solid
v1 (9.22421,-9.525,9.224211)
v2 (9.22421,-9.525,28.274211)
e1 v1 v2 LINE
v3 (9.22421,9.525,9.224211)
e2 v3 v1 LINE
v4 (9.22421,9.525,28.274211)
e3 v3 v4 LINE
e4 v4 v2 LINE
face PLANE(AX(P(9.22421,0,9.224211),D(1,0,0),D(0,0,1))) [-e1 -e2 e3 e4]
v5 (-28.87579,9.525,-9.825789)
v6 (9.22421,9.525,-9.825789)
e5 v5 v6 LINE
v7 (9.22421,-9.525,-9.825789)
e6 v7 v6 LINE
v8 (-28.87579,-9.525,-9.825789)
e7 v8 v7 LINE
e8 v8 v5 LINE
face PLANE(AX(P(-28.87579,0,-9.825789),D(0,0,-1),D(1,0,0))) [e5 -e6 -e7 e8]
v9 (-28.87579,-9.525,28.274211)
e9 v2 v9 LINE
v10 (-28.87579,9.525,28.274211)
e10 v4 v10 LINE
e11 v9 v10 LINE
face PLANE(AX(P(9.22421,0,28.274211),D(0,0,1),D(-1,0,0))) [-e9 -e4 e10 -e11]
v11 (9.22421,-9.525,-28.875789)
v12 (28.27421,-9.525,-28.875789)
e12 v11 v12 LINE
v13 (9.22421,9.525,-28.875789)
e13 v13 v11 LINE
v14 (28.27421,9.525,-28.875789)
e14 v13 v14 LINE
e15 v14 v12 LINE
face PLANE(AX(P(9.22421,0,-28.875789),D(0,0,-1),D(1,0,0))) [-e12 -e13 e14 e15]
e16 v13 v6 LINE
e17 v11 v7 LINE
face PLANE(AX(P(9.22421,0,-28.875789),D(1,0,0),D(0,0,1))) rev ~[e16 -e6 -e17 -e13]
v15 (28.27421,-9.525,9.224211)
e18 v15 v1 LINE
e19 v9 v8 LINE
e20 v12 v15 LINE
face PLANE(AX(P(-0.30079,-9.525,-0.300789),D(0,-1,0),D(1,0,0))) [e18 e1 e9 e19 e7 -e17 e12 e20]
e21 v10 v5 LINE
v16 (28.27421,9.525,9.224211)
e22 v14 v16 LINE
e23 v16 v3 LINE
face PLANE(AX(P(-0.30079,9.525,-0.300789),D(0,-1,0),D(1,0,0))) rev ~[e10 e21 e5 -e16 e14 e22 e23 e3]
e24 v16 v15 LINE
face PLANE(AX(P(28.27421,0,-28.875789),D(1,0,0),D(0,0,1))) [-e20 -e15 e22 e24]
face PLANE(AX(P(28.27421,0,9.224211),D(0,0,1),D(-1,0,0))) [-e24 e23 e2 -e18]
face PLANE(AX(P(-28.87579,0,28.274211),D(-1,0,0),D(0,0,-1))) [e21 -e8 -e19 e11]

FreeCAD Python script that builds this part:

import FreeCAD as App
import Part
import Sketcher
Q = App.Units.Quantity

doc = App.newDocument("Part")
body = doc.addObject("PartDesign::Body", "Body")

# Sketch on XZ plane
sketch1 = body.newObject("Sketcher::SketchObject", "Sketch")
sketch1.AttachmentSupport = (doc.getObject("XZ_Plane"), [""])
sketch1.MapMode = "FlatFace"
sketch1.addGeometry([
    Part.LineSegment(App.Vector(9, -10, 0), App.Vector(9, -29, 0)),  # 0
    Part.LineSegment(App.Vector(9, -29, 0), App.Vector(28, -29, 0)),  # 1
    Part.LineSegment(App.Vector(28, -29, 0), App.Vector(28, 9, 0)),  # 2
    Part.LineSegment(App.Vector(28, 9, 0), App.Vector(9, 9, 0)),  # 3
    Part.LineSegment(App.Vector(9, 9, 0), App.Vector(9, 28, 0)),  # 4
    Part.LineSegment(App.Vector(9, 28, 0), App.Vector(-29, 28, 0)),  # 5
    Part.LineSegment(App.Vector(-29, 28, 0), App.Vector(-29, -10, 0)),  # 6
    Part.LineSegment(App.Vector(-29, -10, 0), App.Vector(9, -10, 0)),  # 7
], False)
sketch1.addConstraint([
    Sketcher.Constraint("Coincident", 0, 2, 1, 1),
    Sketcher.Constraint("Coincident", 1, 2, 2, 1),
    Sketcher.Constraint("Coincident", 2, 2, 3, 1),
    Sketcher.Constraint("Coincident", 3, 2, 4, 1),
    Sketcher.Constraint("Coincident", 4, 2, 5, 1),
    Sketcher.Constraint("Coincident", 5, 2, 6, 1),
    Sketcher.Constraint("Coincident", 6, 2, 7, 1),
    Sketcher.Constraint("Coincident", 7, 2, 0, 1),
    Sketcher.Constraint("Vertical", 0),
    Sketcher.Constraint("Horizontal", 1),
    Sketcher.Constraint("Vertical", 2),
    Sketcher.Constraint("Horizontal", 3),
    Sketcher.Constraint("Vertical", 4),
    Sketcher.Constraint("Horizontal", 5),
    Sketcher.Constraint("Vertical", 6),
    Sketcher.Constraint("Horizontal", 7),
    Sketcher.Constraint("Vertical", 0, 2, 3, 2),
    Sketcher.Constraint("Equal", 3, 0),
    Sketcher.Constraint("Equal", 7, 2),
    Sketcher.Constraint("Equal", 0, 4),
    Sketcher.Constraint("DistanceX", 5, 2, 5, 1, Q("1.5 in")),
    Sketcher.Constraint("DistanceX", 1, 1, 1, 2, Q("0.75 in")),
    Sketcher.Constraint("DistanceX", -1, 1, 0, 2, Q("9.22421 mm")),
    Sketcher.Constraint("DistanceY", 0, 2, -1, 1, Q("28.875789 mm")),
])
pad1 = body.newObject("PartDesign::Pad", "Pad")
pad1.Profile = sketch1
pad1.Length = Q("0.75 in")
pad1.Midplane = True

doc.recompute()
